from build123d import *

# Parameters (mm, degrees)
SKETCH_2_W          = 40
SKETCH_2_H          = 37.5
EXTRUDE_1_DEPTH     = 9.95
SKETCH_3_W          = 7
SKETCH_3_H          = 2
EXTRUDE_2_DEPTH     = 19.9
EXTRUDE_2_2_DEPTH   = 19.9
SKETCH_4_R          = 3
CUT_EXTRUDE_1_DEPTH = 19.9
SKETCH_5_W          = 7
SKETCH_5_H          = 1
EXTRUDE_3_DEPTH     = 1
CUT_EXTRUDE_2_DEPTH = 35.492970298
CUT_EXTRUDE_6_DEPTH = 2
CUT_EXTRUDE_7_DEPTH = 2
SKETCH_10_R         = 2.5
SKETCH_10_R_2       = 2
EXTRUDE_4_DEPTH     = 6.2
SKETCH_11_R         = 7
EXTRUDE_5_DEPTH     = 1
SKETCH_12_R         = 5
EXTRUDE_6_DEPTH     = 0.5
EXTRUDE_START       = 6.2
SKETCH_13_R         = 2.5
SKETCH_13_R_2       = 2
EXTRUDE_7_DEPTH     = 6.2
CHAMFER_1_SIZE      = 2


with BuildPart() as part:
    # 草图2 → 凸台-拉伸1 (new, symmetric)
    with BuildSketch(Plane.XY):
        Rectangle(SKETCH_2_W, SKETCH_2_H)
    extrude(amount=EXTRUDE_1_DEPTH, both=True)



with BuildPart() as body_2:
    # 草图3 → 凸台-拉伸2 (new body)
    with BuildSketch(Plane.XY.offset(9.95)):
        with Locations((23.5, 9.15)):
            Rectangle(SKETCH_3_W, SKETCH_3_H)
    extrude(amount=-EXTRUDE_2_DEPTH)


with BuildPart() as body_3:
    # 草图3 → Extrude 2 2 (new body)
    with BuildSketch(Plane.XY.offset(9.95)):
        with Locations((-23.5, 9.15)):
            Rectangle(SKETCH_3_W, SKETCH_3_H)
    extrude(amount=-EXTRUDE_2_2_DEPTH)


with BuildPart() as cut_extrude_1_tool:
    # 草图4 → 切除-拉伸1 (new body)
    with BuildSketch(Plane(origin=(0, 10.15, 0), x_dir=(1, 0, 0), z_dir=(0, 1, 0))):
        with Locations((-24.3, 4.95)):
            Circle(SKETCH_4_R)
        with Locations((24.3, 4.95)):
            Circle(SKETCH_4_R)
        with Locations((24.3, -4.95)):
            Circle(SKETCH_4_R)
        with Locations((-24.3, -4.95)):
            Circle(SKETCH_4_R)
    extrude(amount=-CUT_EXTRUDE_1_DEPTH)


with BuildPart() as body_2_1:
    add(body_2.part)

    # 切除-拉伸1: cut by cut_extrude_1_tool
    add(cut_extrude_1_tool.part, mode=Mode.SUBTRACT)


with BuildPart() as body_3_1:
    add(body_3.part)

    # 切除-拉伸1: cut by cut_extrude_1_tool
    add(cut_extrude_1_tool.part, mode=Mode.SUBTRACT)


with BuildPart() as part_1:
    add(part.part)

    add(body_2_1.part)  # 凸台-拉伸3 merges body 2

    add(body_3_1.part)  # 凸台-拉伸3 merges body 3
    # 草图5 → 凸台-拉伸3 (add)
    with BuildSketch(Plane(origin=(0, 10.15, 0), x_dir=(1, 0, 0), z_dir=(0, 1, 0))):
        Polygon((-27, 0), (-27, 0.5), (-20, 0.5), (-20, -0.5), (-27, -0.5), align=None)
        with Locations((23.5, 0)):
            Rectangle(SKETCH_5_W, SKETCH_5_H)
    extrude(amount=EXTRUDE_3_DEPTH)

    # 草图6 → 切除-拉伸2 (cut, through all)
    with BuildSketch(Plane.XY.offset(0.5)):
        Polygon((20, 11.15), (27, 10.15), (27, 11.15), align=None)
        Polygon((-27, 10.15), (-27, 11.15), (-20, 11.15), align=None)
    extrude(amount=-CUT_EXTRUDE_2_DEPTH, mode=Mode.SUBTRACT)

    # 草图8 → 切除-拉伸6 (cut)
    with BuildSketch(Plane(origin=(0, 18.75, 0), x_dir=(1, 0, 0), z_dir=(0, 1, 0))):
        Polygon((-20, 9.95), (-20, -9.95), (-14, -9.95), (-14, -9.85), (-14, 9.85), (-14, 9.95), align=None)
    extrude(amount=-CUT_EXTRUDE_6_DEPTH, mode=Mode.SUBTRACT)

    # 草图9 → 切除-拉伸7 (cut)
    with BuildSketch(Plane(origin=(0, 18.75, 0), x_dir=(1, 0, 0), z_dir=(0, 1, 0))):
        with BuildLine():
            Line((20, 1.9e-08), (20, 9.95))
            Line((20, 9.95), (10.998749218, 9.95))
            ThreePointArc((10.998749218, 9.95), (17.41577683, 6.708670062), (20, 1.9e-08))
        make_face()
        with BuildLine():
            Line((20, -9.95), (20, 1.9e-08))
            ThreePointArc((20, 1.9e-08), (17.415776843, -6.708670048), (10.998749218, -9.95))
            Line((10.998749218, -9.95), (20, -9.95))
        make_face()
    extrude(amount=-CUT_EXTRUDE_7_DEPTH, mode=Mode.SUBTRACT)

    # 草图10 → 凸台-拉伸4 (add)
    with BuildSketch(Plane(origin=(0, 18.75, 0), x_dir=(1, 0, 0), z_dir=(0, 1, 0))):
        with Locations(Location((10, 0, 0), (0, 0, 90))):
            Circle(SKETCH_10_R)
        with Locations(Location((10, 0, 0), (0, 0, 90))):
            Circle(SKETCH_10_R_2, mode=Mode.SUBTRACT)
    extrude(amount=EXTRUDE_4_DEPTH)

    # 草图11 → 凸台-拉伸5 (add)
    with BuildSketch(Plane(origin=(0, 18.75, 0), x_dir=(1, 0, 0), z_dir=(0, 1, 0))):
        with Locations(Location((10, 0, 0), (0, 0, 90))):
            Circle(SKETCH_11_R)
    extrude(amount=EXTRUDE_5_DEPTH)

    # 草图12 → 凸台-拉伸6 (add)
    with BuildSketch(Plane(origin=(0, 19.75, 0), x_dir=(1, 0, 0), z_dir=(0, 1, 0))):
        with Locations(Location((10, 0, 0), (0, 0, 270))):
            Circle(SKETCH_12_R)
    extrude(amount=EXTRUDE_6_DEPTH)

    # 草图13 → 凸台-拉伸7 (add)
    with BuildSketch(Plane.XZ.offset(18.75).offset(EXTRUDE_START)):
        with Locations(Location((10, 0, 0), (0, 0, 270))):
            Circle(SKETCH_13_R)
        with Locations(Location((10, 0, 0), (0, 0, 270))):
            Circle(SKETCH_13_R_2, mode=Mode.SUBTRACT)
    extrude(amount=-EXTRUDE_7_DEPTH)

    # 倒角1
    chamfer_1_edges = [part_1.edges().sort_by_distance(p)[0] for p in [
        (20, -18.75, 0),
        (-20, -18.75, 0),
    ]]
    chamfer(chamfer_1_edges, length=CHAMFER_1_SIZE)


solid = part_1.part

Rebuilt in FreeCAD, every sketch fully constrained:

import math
import FreeCAD as App
import Part
import Sketcher
from FreeCAD import Vector


def edges_at(feature, points):
    """Names of the edges that pass closest to the given points."""
    edges = feature.Shape.Edges
    near = lambda p: min(range(len(edges)), key=lambda i: edges[i].distToShape(Part.Vertex(*p))[0])
    return sorted({f"Edge{near(p) + 1}" for p in points})

doc = App.newDocument("Part")
body = doc.addObject("PartDesign::Body", "Body")

# Sketch on XY plane
sketch1 = body.newObject("Sketcher::SketchObject", "Sketch")
sketch1.AttachmentSupport = (doc.getObject("XY_Plane"), [""])
sketch1.MapMode = "FlatFace"
sketch1.addGeometry(Part.LineSegment(Vector(-20, 19, 0), Vector(-20, -19, 0)), False)
sketch1.addGeometry(Part.LineSegment(Vector(-20, -19, 0), Vector(20, -19, 0)), False)
sketch1.addGeometry(Part.LineSegment(Vector(20, -19, 0), Vector(20, 19, 0)), False)
sketch1.addGeometry(Part.LineSegment(Vector(20, 19, 0), Vector(-20, 19, 0)), False)
sketch1.addConstraint(Sketcher.Constraint("Coincident", 0, 2, 1, 1))
sketch1.addConstraint(Sketcher.Constraint("Coincident", 1, 2, 2, 1))
sketch1.addConstraint(Sketcher.Constraint("Coincident", 2, 2, 3, 1))
sketch1.addConstraint(Sketcher.Constraint("Coincident", 3, 2, 0, 1))
sketch1.addConstraint(Sketcher.Constraint("Vertical", 0))
sketch1.addConstraint(Sketcher.Constraint("Horizontal", 1))
sketch1.addConstraint(Sketcher.Constraint("Vertical", 2))
sketch1.addConstraint(Sketcher.Constraint("Horizontal", 3))
sketch1.addConstraint(Sketcher.Constraint("Symmetric", 0, 2, 2, 2, -1, 1))
sketch1.addConstraint(Sketcher.Constraint("DistanceX", 1, 1, 1, 2, 40.0))
sketch1.addConstraint(Sketcher.Constraint("DistanceY", 0, 2, 0, 1, 37.5))
pad1 = body.newObject("PartDesign::Pad", "Pad")
pad1.Profile = sketch1
pad1.Length = 19.9
pad1.Midplane = True
body2 = doc.addObject("PartDesign::Body", "Body001")

# Sketch on XY plane
sketch2 = body2.newObject("Sketcher::SketchObject", "Sketch001")
sketch2.AttachmentSupport = (doc.getObject("XY_Plane001"), [""])
sketch2.MapMode = "FlatFace"
sketch2.AttachmentOffset = App.Placement(Vector(0, 0, 9.95), App.Rotation())
sketch2.addGeometry(Part.LineSegment(Vector(20, 10.2, 0), Vector(20, 8.2, 0)), False)
sketch2.addGeometry(Part.LineSegment(Vector(20, 8.2, 0), Vector(27, 8.2, 0)), False)
sketch2.addGeometry(Part.LineSegment(Vector(27, 8.2, 0), Vector(27, 10.2, 0)), False)
sketch2.addGeometry(Part.LineSegment(Vector(27, 10.2, 0), Vector(20, 10.2, 0)), False)
sketch2.addConstraint(Sketcher.Constraint("Coincident", 0, 2, 1, 1))
sketch2.addConstraint(Sketcher.Constraint("Coincident", 1, 2, 2, 1))
sketch2.addConstraint(Sketcher.Constraint("Coincident", 2, 2, 3, 1))
sketch2.addConstraint(Sketcher.Constraint("Coincident", 3, 2, 0, 1))
sketch2.addConstraint(Sketcher.Constraint("Vertical", 0))
sketch2.addConstraint(Sketcher.Constraint("Horizontal", 1))
sketch2.addConstraint(Sketcher.Constraint("Vertical", 2))
sketch2.addConstraint(Sketcher.Constraint("Horizontal", 3))
sketch2.addConstraint(Sketcher.Constraint("DistanceX", 1, 1, 1, 2, 7.0))
sketch2.addConstraint(Sketcher.Constraint("DistanceY", 0, 2, 0, 1, 2.0))
sketch2.addConstraint(Sketcher.Constraint("DistanceX", -1, 1, 0, 2, 20.0))
sketch2.addConstraint(Sketcher.Constraint("DistanceY", -1, 1, 0, 2, 8.15))
pad2 = body2.newObject("PartDesign::Pad", "Pad001")
pad2.Profile = sketch2
pad2.Length = 19.9
pad2.Reversed = True
body3 = doc.addObject("PartDesign::Body", "Body002")

# Sketch on XY plane
sketch3 = body3.newObject("Sketcher::SketchObject", "Sketch002")
sketch3.AttachmentSupport = (doc.getObject("XY_Plane002"), [""])
sketch3.MapMode = "FlatFace"
sketch3.AttachmentOffset = App.Placement(Vector(0, 0, 9.95), App.Rotation())
sketch3.addGeometry(Part.LineSegment(Vector(-27, 10.2, 0), Vector(-27, 8.2, 0)), False)
sketch3.addGeometry(Part.LineSegment(Vector(-27, 8.2, 0), Vector(-20, 8.2, 0)), False)
sketch3.addGeometry(Part.LineSegment(Vector(-20, 8.2, 0), Vector(-20, 10.2, 0)), False)
sketch3.addGeometry(Part.LineSegment(Vector(-20, 10.2, 0), Vector(-27, 10.2, 0)), False)
sketch3.addConstraint(Sketcher.Constraint("Coincident", 0, 2, 1, 1))
sketch3.addConstraint(Sketcher.Constraint("Coincident", 1, 2, 2, 1))
sketch3.addConstraint(Sketcher.Constraint("Coincident", 2, 2, 3, 1))
sketch3.addConstraint(Sketcher.Constraint("Coincident", 3, 2, 0, 1))
sketch3.addConstraint(Sketcher.Constraint("Vertical", 0))
sketch3.addConstraint(Sketcher.Constraint("Horizontal", 1))
sketch3.addConstraint(Sketcher.Constraint("Vertical", 2))
sketch3.addConstraint(Sketcher.Constraint("Horizontal", 3))
sketch3.addConstraint(Sketcher.Constraint("DistanceX", 1, 1, 1, 2, 7.0))
sketch3.addConstraint(Sketcher.Constraint("DistanceY", 0, 2, 0, 1, 2.0))
sketch3.addConstraint(Sketcher.Constraint("DistanceX", 0, 2, -1, 1, 27.0))
sketch3.addConstraint(Sketcher.Constraint("DistanceY", -1, 1, 0, 2, 8.15))
pad3 = body3.newObject("PartDesign::Pad", "Pad002")
pad3.Profile = sketch3
pad3.Length = 19.9
pad3.Reversed = True
body4 = doc.addObject("PartDesign::Body", "Body003")
body4.AllowCompound = True

# Sketch on XZ plane
sketch4 = body4.newObject("Sketcher::SketchObject", "Sketch003")
sketch4.AttachmentSupport = (doc.getObject("XZ_Plane003"), [""])
sketch4.MapMode = "FlatFace"
sketch4.AttachmentOffset = App.Placement(Vector(0, 0, -10.15), App.Rotation())
sketch4.addGeometry(Part.Circle(Vector(-24.3, -5, 0), Vector(0, 0, 1), 3), False)
sketch4.addGeometry(Part.Circle(Vector(24.3, -5, 0), Vector(0, 0, 1), 3), False)
sketch4.addGeometry(Part.Circle(Vector(24.3, 5, 0), Vector(0, 0, 1), 3), False)
sketch4.addGeometry(Part.Circle(Vector(-24.3, 5, 0), Vector(0, 0, 1), 3), False)
sketch4.addConstraint(Sketcher.Constraint("Equal", 0, 1))
sketch4.addConstraint(Sketcher.Constraint("Equal", 1, 2))
sketch4.addConstraint(Sketcher.Constraint("Equal", 2, 3))
sketch4.addConstraint(Sketcher.Constraint("Symmetric", 0, 3, 2, 3, -1, 1))
sketch4.addConstraint(Sketcher.Constraint("Symmetric", 1, 3, 3, 3, -1, 1))
sketch4.addConstraint(Sketcher.Constraint("Symmetric", 0, 3, 1, 3, -2))
sketch4.addConstraint(Sketcher.Constraint("Diameter", 0, 6.0))
sketch4.addConstraint(Sketcher.Constraint("DistanceX", 0, 3, -1, 1, 24.3))
sketch4.addConstraint(Sketcher.Constraint("DistanceY", 1, 3, 2, 3, 9.9))
pad4 = body4.newObject("PartDesign::Pad", "Pad003")
pad4.Profile = sketch4
pad4.Length = 19.9
doc.recompute()

body5 = doc.addObject("PartDesign::Body", "Body004")
body5.BaseFeature = body4
boolean = body2.newObject("PartDesign::Boolean", "Boolean")
boolean.Type = "Cut"
boolean.addObjects([body5])
doc.recompute()

boolean2 = body3.newObject("PartDesign::Boolean", "Boolean001")
boolean2.Type = "Cut"
boolean2.addObjects([body4])
doc.recompute()

boolean3 = body.newObject("PartDesign::Boolean", "Boolean002")
boolean3.Type = "Fuse"
boolean3.addObjects([body2])
doc.recompute()

boolean4 = body.newObject("PartDesign::Boolean", "Boolean003")
boolean4.Type = "Fuse"
boolean4.addObjects([body3])

# Sketch on XZ plane
sketch5 = body.newObject("Sketcher::SketchObject", "Sketch004")
sketch5.AttachmentSupport = (doc.getObject("XZ_Plane"), [""])
sketch5.MapMode = "FlatFace"
sketch5.AttachmentOffset = App.Placement(Vector(0, 0, -10.15), App.Rotation())
sketch5.addGeometry(Part.LineSegment(Vector(-27, -0.5, 0), Vector(-27, 0.5, 0)), False)
sketch5.addGeometry(Part.LineSegment(Vector(-27, 0.5, 0), Vector(-20, 0.5, 0)), False)
sketch5.addGeometry(Part.LineSegment(Vector(-20, 0.5, 0), Vector(-20, -0.5, 0)), False)
sketch5.addGeometry(Part.LineSegment(Vector(-20, -0.5, 0), Vector(-27, -0.5, 0)), False)
sketch5.addGeometry(Part.LineSegment(Vector(20, -0.5, 0), Vector(20, 0.5, 0)), False)
sketch5.addGeometry(Part.LineSegment(Vector(20, 0.5, 0), Vector(27, 0.5, 0)), False)
sketch5.addGeometry(Part.LineSegment(Vector(27, 0.5, 0), Vector(27, -0.5, 0)), False)
sketch5.addGeometry(Part.LineSegment(Vector(27, -0.5, 0), Vector(20, -0.5, 0)), False)
sketch5.addConstraint(Sketcher.Constraint("Coincident", 0, 2, 1, 1))
sketch5.addConstraint(Sketcher.Constraint("Coincident", 1, 2, 2, 1))
sketch5.addConstraint(Sketcher.Constraint("Coincident", 2, 2, 3, 1))
sketch5.addConstraint(Sketcher.Constraint("Coincident", 3, 2, 0, 1))
sketch5.addConstraint(Sketcher.Constraint("Coincident", 4, 2, 5, 1))
sketch5.addConstraint(Sketcher.Constraint("Coincident", 5, 2, 6, 1))
sketch5.addConstraint(Sketcher.Constraint("Coincident", 6, 2, 7, 1))
sketch5.addConstraint(Sketcher.Constraint("Coincident", 7, 2, 4, 1))
sketch5.addConstraint(Sketcher.Constraint("Vertical", 0))
sketch5.addConstraint(Sketcher.Constraint("Horizontal", 1))
sketch5.addConstraint(Sketcher.Constraint("Vertical", 2))
sketch5.addConstraint(Sketcher.Constraint("Horizontal", 3))
sketch5.addConstraint(Sketcher.Constraint("Vertical", 4))
sketch5.addConstraint(Sketcher.Constraint("Horizontal", 5))
sketch5.addConstraint(Sketcher.Constraint("Vertical", 6))
sketch5.addConstraint(Sketcher.Constraint("Horizontal", 7))
sketch5.addConstraint(Sketcher.Constraint("Symmetric", 2, 2, 4, 2, -1, 1))
sketch5.addConstraint(Sketcher.Constraint("Symmetric", 0, 2, 6, 2, -1, 1))
sketch5.addConstraint(Sketcher.Constraint("Horizontal", 1, 2, 4, 2))
sketch5.addConstraint(Sketcher.Constraint("DistanceX", 1, 1, 1, 2, 7.0))
sketch5.addConstraint(Sketcher.Constraint("DistanceY", 0, 1, 0, 2, 1.0))
sketch5.addConstraint(Sketcher.Constraint("DistanceX", 0, 2, -1, 1, 27.0))
pad5 = body.newObject("PartDesign::Pad", "Pad004")
pad5.Profile = sketch5
pad5.Length = 1
pad5.Reversed = True

# Sketch on XY plane
sketch6 = body.newObject("Sketcher::SketchObject", "Sketch005")
sketch6.AttachmentSupport = (doc.getObject("XY_Plane"), [""])
sketch6.MapMode = "FlatFace"
sketch6.AttachmentOffset = App.Placement(Vector(0, 0, 0.5), App.Rotation())
sketch6.addGeometry(Part.LineSegment(Vector(20, 11.2, 0), Vector(27, 10.2, 0)), False)
sketch6.addGeometry(Part.LineSegment(Vector(27, 10.2, 0), Vector(27, 11.2, 0)), False)
sketch6.addGeometry(Part.LineSegment(Vector(27, 11.2, 0), Vector(20, 11.2, 0)), False)
sketch6.addGeometry(Part.LineSegment(Vector(-27, 11.2, 0), Vector(-27, 10.2, 0)), False)
sketch6.addGeometry(Part.LineSegment(Vector(-27, 10.2, 0), Vector(-20, 11.2, 0)), False)
sketch6.addGeometry(Part.LineSegment(Vector(-20, 11.2, 0), Vector(-27, 11.2, 0)), False)
sketch6.addConstraint(Sketcher.Constraint("Coincident", 0, 2, 1, 1))
sketch6.addConstraint(Sketcher.Constraint("Coincident", 1, 2, 2, 1))
sketch6.addConstraint(Sketcher.Constraint("Coincident", 2, 2, 0, 1))
sketch6.addConstraint(Sketcher.Constraint("Coincident", 3, 2, 4, 1))
sketch6.addConstraint(Sketcher.Constraint("Coincident", 4, 2, 5, 1))
sketch6.addConstraint(Sketcher.Constraint("Coincident", 5, 2, 3, 1))
sketch6.addConstraint(Sketcher.Constraint("Vertical", 1))
sketch6.addConstraint(Sketcher.Constraint("Horizontal", 2))
sketch6.addConstraint(Sketcher.Constraint("Vertical", 3))
sketch6.addConstraint(Sketcher.Constraint("Horizontal", 5))
sketch6.addConstraint(Sketcher.Constraint("Symmetric", 0, 2, 3, 2, -2))
sketch6.addConstraint(Sketcher.Constraint("Symmetric", 2, 2, 4, 2, -2))
sketch6.addConstraint(Sketcher.Constraint("DistanceX", 2, 2, 2, 1, 7.0))
sketch6.addConstraint(Sketcher.Constraint("DistanceY", 1, 1, 1, 2, 1.0))
sketch6.addConstraint(Sketcher.Constraint("DistanceX", -1, 1, 0, 2, 27.0))
sketch6.addConstraint(Sketcher.Constraint("DistanceY", -1, 1, 0, 2, 10.15))
pocket1 = body.newObject("PartDesign::Pocket", "Pocket")
pocket1.Profile = sketch6
pocket1.Type = "ThroughAll"

# Sketch on XZ plane
sketch7 = body.newObject("Sketcher::SketchObject", "Sketch006")
sketch7.AttachmentSupport = (doc.getObject("XZ_Plane"), [""])
sketch7.MapMode = "FlatFace"
sketch7.AttachmentOffset = App.Placement(Vector(0, 0, -18.75), App.Rotation())
sketch7.addGeometry(Part.LineSegment(Vector(-20, -10, 0), Vector(-20, 10, 0)), False)
sketch7.addGeometry(Part.LineSegment(Vector(-20, 10, 0), Vector(-14, 10, 0)), False)
sketch7.addGeometry(Part.LineSegment(Vector(-14, 10, 0), Vector(-14, -10, 0)), False)
sketch7.addGeometry(Part.LineSegment(Vector(-14, -10, 0), Vector(-20, -10, 0)), False)
sketch7.addConstraint(Sketcher.Constraint("Coincident", 0, 2, 1, 1))
sketch7.addConstraint(Sketcher.Constraint("Coincident", 1, 2, 2, 1))
sketch7.addConstraint(Sketcher.Constraint("Coincident", 2, 2, 3, 1))
sketch7.addConstraint(Sketcher.Constraint("Coincident", 3, 2, 0, 1))
sketch7.addConstraint(Sketcher.Constraint("Vertical", 0))
sketch7.addConstraint(Sketcher.Constraint("Horizontal", 1))
sketch7.addConstraint(Sketcher.Constraint("Vertical", 2))
sketch7.addConstraint(Sketcher.Constraint("Horizontal", 3))
sketch7.addConstraint(Sketcher.Constraint("DistanceX", 1, 1, 1, 2, 6.0))
sketch7.addConstraint(Sketcher.Constraint("DistanceY", 0, 1, 0, 2, 19.9))
sketch7.addConstraint(Sketcher.Constraint("DistanceX", 0, 2, -1, 1, 20.0))
sketch7.addConstraint(Sketcher.Constraint("DistanceY", -1, 1, 0, 2, 9.95))
pocket2 = body.newObject("PartDesign::Pocket", "Pocket001")
pocket2.Profile = sketch7
pocket2.Length = 2
pocket2.Reversed = True

# Sketch on XZ plane
sketch8 = body.newObject("Sketcher::SketchObject", "Sketch007")
sketch8.AttachmentSupport = (doc.getObject("XZ_Plane"), [""])
sketch8.MapMode = "FlatFace"
sketch8.AttachmentOffset = App.Placement(Vector(0, 0, -18.75), App.Rotation())
sketch8.addGeometry(Part.LineSegment(Vector(20, 0, 0), Vector(20, -10, 0)), False)
sketch8.addGeometry(Part.LineSegment(Vector(20, -10, 0), Vector(11, -10, 0)), False)
sketch8.addGeometry(Part.ArcOfCircle(Part.Circle(Vector(10, 0, 0), Vector(0, 0, 1), 10), math.radians(-84), math.radians(0)), False)
sketch8.addGeometry(Part.LineSegment(Vector(20, 10, 0), Vector(20, 0, 0)), False)
sketch8.addGeometry(Part.ArcOfCircle(Part.Circle(Vector(10, 0, 0), Vector(0, 0, 1), 10), math.radians(0), math.radians(84)), False)
sketch8.addGeometry(Part.LineSegment(Vector(11, 10, 0), Vector(20, 10, 0)), False)
sketch8.addConstraint(Sketcher.Constraint("Coincident", 0, 2, 1, 1))
sketch8.addConstraint(Sketcher.Constraint("Coincident", 1, 2, 2, 1))
sketch8.addConstraint(Sketcher.Constraint("Tangent", 2, 2, 0, 1))
sketch8.addConstraint(Sketcher.Constraint("Tangent", 3, 2, 4, 1))
sketch8.addConstraint(Sketcher.Constraint("Coincident", 4, 2, 5, 1))
sketch8.addConstraint(Sketcher.Constraint("Coincident", 5, 2, 3, 1))
sketch8.addConstraint(Sketcher.Constraint("Vertical", 0))
sketch8.addConstraint(Sketcher.Constraint("Horizontal", 1))
sketch8.addConstraint(Sketcher.Constraint("Vertical", 3))
sketch8.addConstraint(Sketcher.Constraint("Horizontal", 5))
sketch8.addConstraint(Sketcher.Constraint("Coincident", 4, 3, 2, 3))
sketch8.addConstraint(Sketcher.Constraint("Equal", 2, 4))
sketch8.addConstraint(Sketcher.Constraint("Symmetric", 1, 2, 4, 2, -1))
sketch8.addConstraint(Sketcher.Constraint("Radius", 2, 10.0))
sketch8.addConstraint(Sketcher.Constraint("DistanceX", -1, 1, 2, 3, 10.0))
sketch8.addConstraint(Sketcher.Constraint("DistanceY", 0, 2, 0, 1, 9.95))
pocket3 = body.newObject("PartDesign::Pocket", "Pocket002")
pocket3.Profile = sketch8
pocket3.Length = 2
pocket3.Reversed = True

# Sketch on XZ plane
sketch9 = body.newObject("Sketcher::SketchObject", "Sketch008")
sketch9.AttachmentSupport = (doc.getObject("XZ_Plane"), [""])
sketch9.MapMode = "FlatFace"
sketch9.AttachmentOffset = App.Placement(Vector(0, 0, -18.75), App.Rotation())
sketch9.addGeometry(Part.Circle(Vector(10, 0, 0), Vector(0, 0, 1), 2.5), False)
sketch9.addGeometry(Part.Circle(Vector(10, 0, 0), Vector(0, 0, 1), 2), False)
sketch9.addConstraint(Sketcher.Constraint("Coincident", 1, 3, 0, 3))
sketch9.addConstraint(Sketcher.Constraint("PointOnObject", 0, 3, -1))
sketch9.addConstraint(Sketcher.Constraint("Diameter", 0, 5.0))
sketch9.addConstraint(Sketcher.Constraint("Diameter", 1, 4.0))
sketch9.addConstraint(Sketcher.Constraint("DistanceX", -1, 1, 0, 3, 10.0))
pad6 = body.newObject("PartDesign::Pad", "Pad005")
pad6.Profile = sketch9
pad6.Length = 6.2
pad6.Reversed = True

# Sketch on XZ plane
sketch10 = body.newObject("Sketcher::SketchObject", "Sketch009")
sketch10.AttachmentSupport = (doc.getObject("XZ_Plane"), [""])
sketch10.MapMode = "FlatFace"
sketch10.AttachmentOffset = App.Placement(Vector(0, 0, -18.75), App.Rotation())
sketch10.addGeometry(Part.Circle(Vector(10, 0, 0), Vector(0, 0, 1), 7), False)
sketch10.addConstraint(Sketcher.Constraint("PointOnObject", 0, 3, -1))
sketch10.addConstraint(Sketcher.Constraint("Diameter", 0, 14.0))
sketch10.addConstraint(Sketcher.Constraint("DistanceX", -1, 1, 0, 3, 10.0))
pad7 = body.newObject("PartDesign::Pad", "Pad006")
pad7.Profile = sketch10
pad7.Length = 1
pad7.Reversed = True

# Sketch on XZ plane
sketch11 = body.newObject("Sketcher::SketchObject", "Sketch010")
sketch11.AttachmentSupport = (doc.getObject("XZ_Plane"), [""])
sketch11.MapMode = "FlatFace"
sketch11.AttachmentOffset = App.Placement(Vector(0, 0, -19.75), App.Rotation())
sketch11.addGeometry(Part.Circle(Vector(10, 0, 0), Vector(0, 0, 1), 5), False)
sketch11.addConstraint(Sketcher.Constraint("PointOnObject", 0, 3, -1))
sketch11.addConstraint(Sketcher.Constraint("Diameter", 0, 10.0))
sketch11.addConstraint(Sketcher.Constraint("DistanceX", -1, 1, 0, 3, 10.0))
pad8 = body.newObject("PartDesign::Pad", "Pad007")
pad8.Profile = sketch11
pad8.Length = 0.5
pad8.Reversed = True

# Sketch on XZ plane
sketch12 = body.newObject("Sketcher::SketchObject", "Sketch011")
sketch12.AttachmentSupport = (doc.getObject("XZ_Plane"), [""])
sketch12.MapMode = "FlatFace"
sketch12.AttachmentOffset = App.Placement(Vector(0, 0, 24.95), App.Rotation())
sketch12.addGeometry(Part.Circle(Vector(10, 0, 0), Vector(0, 0, 1), 2.5), False)
sketch12.addGeometry(Part.Circle(Vector(10, 0, 0), Vector(0, 0, 1), 2), False)
sketch12.addConstraint(Sketcher.Constraint("Coincident", 1, 3, 0, 3))
sketch12.addConstraint(Sketcher.Constraint("PointOnObject", 0, 3, -1))
sketch12.addConstraint(Sketcher.Constraint("Diameter", 0, 5.0))
sketch12.addConstraint(Sketcher.Constraint("Diameter", 1, 4.0))
sketch12.addConstraint(Sketcher.Constraint("DistanceX", -1, 1, 0, 3, 10.0))
pad9 = body.newObject("PartDesign::Pad", "Pad008")
pad9.Profile = sketch12
pad9.Length = 6.2
pad9.Reversed = True
doc.recompute()

chamfer = body.newObject("PartDesign::Chamfer", "Chamfer")
chamfer.Base = (pad9, edges_at(pad9, [(20, -18.75, 0), (-20, -18.75, 0)]))
chamfer.Size = 2

doc.recompute()
